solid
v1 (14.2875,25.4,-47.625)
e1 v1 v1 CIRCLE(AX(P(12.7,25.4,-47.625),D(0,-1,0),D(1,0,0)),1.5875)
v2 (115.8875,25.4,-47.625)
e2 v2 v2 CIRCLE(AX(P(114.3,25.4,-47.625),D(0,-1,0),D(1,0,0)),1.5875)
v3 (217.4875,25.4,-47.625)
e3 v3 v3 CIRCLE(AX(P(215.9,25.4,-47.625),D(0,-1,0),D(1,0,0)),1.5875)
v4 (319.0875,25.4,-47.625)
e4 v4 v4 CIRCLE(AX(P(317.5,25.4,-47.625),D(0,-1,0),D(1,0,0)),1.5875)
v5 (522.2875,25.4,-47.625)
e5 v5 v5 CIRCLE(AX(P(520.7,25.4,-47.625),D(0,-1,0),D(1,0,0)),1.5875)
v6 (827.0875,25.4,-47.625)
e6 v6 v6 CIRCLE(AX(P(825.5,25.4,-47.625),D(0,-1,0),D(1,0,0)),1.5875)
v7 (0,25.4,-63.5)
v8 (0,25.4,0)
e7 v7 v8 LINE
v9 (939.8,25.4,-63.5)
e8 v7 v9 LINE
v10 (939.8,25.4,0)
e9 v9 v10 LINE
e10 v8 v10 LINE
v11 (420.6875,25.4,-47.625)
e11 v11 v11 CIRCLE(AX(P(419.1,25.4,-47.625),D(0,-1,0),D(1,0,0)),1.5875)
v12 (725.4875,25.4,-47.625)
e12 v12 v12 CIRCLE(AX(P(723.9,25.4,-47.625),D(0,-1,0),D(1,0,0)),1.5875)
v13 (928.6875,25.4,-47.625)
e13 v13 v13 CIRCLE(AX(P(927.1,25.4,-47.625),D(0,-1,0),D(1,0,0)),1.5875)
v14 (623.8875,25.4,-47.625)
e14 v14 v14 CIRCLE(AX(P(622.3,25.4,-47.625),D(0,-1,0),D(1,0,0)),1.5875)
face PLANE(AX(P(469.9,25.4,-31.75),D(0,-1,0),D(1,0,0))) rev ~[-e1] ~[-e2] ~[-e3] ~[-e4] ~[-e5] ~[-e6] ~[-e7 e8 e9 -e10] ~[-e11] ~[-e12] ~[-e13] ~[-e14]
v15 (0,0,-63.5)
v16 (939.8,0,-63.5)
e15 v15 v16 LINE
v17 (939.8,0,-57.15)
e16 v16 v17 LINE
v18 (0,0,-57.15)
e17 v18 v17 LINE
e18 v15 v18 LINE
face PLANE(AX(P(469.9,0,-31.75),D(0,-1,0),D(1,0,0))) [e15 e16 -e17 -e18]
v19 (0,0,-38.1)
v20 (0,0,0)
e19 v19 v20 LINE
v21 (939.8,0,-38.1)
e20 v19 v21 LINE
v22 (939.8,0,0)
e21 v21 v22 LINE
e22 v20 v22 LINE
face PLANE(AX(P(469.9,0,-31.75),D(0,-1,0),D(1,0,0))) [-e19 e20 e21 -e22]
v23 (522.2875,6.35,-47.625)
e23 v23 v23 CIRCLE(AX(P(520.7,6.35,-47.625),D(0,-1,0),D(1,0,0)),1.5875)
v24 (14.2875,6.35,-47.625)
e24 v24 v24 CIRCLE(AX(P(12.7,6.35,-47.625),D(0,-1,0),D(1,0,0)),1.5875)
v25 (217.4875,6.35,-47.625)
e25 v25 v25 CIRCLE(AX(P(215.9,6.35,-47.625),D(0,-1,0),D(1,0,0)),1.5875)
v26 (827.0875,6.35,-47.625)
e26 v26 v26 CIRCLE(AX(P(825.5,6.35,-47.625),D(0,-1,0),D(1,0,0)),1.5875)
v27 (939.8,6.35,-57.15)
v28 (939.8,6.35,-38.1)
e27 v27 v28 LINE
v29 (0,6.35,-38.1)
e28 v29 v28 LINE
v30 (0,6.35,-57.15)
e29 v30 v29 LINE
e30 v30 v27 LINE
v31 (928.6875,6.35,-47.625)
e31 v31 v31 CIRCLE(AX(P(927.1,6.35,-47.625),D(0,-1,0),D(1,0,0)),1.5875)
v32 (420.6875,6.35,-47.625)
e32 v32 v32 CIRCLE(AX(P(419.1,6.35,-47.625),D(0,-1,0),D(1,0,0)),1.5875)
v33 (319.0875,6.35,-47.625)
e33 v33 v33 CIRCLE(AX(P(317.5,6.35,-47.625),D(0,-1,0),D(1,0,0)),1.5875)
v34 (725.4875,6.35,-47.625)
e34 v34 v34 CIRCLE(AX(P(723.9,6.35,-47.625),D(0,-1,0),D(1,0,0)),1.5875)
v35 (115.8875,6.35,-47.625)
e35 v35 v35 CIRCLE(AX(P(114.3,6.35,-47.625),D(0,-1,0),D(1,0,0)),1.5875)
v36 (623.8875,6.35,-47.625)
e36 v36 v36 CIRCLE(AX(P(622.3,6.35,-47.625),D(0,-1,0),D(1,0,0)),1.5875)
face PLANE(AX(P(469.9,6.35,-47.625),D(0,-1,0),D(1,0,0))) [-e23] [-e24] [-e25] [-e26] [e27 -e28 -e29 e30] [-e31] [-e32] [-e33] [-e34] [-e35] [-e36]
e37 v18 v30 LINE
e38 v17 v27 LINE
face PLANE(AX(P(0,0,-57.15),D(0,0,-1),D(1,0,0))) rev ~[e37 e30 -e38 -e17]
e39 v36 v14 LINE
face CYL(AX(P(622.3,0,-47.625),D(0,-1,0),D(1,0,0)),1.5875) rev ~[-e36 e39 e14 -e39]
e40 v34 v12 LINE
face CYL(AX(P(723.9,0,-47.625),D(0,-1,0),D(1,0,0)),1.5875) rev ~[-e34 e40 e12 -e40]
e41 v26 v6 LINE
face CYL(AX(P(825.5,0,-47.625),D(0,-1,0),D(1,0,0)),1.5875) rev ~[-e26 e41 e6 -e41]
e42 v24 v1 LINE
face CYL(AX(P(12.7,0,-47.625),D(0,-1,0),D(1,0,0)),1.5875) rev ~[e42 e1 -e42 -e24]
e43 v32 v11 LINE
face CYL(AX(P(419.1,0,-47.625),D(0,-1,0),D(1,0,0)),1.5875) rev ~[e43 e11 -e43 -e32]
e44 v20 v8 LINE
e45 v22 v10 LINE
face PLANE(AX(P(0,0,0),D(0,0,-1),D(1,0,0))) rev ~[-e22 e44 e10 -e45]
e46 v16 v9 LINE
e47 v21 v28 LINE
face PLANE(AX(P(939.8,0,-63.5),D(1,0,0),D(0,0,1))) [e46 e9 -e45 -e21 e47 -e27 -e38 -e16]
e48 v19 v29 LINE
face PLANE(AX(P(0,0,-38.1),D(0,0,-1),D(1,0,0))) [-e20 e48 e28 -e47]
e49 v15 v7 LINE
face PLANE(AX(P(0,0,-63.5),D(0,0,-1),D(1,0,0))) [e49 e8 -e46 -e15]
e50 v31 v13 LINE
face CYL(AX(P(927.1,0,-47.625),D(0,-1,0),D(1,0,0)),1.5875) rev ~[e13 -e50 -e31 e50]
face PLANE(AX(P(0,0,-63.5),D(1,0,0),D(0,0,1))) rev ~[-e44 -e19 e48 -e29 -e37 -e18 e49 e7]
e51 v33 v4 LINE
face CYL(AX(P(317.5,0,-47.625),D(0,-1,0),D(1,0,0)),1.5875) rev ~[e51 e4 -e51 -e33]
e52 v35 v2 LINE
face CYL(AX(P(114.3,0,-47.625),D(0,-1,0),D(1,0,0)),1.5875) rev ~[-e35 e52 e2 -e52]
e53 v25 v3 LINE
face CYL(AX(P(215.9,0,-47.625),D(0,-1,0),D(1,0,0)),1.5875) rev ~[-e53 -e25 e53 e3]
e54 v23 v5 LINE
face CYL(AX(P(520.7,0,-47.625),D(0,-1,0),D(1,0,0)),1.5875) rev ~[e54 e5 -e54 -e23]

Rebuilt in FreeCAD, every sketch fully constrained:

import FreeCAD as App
import Part
import Sketcher

V = App.Vector
Q = App.Units.Quantity


def add_polygon(sketch, points):
    """Adds a closed chain of lines whose ends are joined by coincident constraints."""
    first, n = sketch.GeometryCount, len(points)
    for a, b in zip(points, points[1:] + points[:1]):
        sketch.addGeometry(Part.LineSegment(App.Vector(*a, 0), App.Vector(*b, 0)), False)
    for i in range(n):
        sketch.addConstraint(Sketcher.Constraint("Coincident", first + i, 2, first + (i + 1) % n, 1))

doc = App.newDocument("Part")
body = doc.addObject("PartDesign::Body", "Body")

# Sketch on XZ plane
sketch1 = body.newObject("Sketcher::SketchObject", "Sketch")
sketch1.AttachmentSupport = (doc.getObject("XZ_Plane"), [""])
sketch1.MapMode = "FlatFace"
add_polygon(sketch1, [(0, 0), (0, -64), (940, -64), (940, 0)])  # lines 0-3
sketch1.addConstraint([
    Sketcher.Constraint("Vertical", 0),
    Sketcher.Constraint("Horizontal", 1),
    Sketcher.Constraint("Vertical", 2),
    Sketcher.Constraint("Horizontal", 3),
    Sketcher.Constraint("Coincident", 3, 2, -1, 1),
    Sketcher.Constraint("DistanceX", 1, 1, 1, 2, Q("37 in")),
    Sketcher.Constraint("DistanceY", 0, 2, 0, 1, Q("2.5 in")),
])
pad1 = body.newObject("PartDesign::Pad", "Pad")
pad1.Profile = sketch1
pad1.Length = Q("1 in")
pad1.Reversed = True

# Sketch on XZ plane
sketch2 = body.newObject("Sketcher::SketchObject", "Sketch001")
sketch2.AttachmentSupport = (doc.getObject("XZ_Plane"), [""])
sketch2.MapMode = "FlatFace"
add_polygon(sketch2, [(0, -38), (0, -57), (940, -57), (940, -38)])  # lines 0-3
sketch2.addConstraint([
    Sketcher.Constraint("Vertical", 0),
    Sketcher.Constraint("Horizontal", 1),
    Sketcher.Constraint("Vertical", 2),
    Sketcher.Constraint("Horizontal", 3),
    Sketcher.Constraint("PointOnObject", 0, 2, -2),
    Sketcher.Constraint("DistanceX", 1, 1, 1, 2, Q("37 in")),
    Sketcher.Constraint("DistanceY", 0, 2, 0, 1, Q("0.75 in")),
    Sketcher.Constraint("DistanceY", 2, 2, -1, 1, Q("1.5 in")),
])
pocket1 = body.newObject("PartDesign::Pocket", "Pocket")
pocket1.Profile = sketch2
pocket1.Length = Q("0.25 in")

# Sketch on XZ plane
sketch3 = body.newObject("Sketcher::SketchObject", "Sketch002")
sketch3.AttachmentSupport = (doc.getObject("XZ_Plane"), [""])
sketch3.MapMode = "FlatFace"
sketch3.addGeometry([
    Part.Circle(V(12.7, -47.6, 0), V(0, 0, 1), 1.6),  # 0
    Part.Circle(V(114.3, -47.6, 0), V(0, 0, 1), 1.6),  # 1
    Part.Circle(V(215.9, -47.6, 0), V(0, 0, 1), 1.6),  # 2
    Part.Circle(V(317.5, -47.6, 0), V(0, 0, 1), 1.6),  # 3
    Part.Circle(V(419.1, -47.6, 0), V(0, 0, 1), 1.6),  # 4
    Part.Circle(V(520.7, -47.6, 0), V(0, 0, 1), 1.6),  # 5
    Part.Circle(V(622.3, -47.6, 0), V(0, 0, 1), 1.6),  # 6
    Part.Circle(V(723.9, -47.6, 0), V(0, 0, 1), 1.6),  # 7
    Part.Circle(V(825.5, -47.6, 0), V(0, 0, 1), 1.6),  # 8
    Part.Circle(V(927.1, -47.6, 0), V(0, 0, 1), 1.6),  # 9
], False)
sketch3.addConstraint([
    Sketcher.Constraint("Equal", 0, 1),
    Sketcher.Constraint("Equal", 1, 2),
    Sketcher.Constraint("Equal", 2, 3),
    Sketcher.Constraint("Equal", 3, 4),
    Sketcher.Constraint("Equal", 4, 5),
    Sketcher.Constraint("Equal", 5, 6),
    Sketcher.Constraint("Equal", 6, 7),
    Sketcher.Constraint("Equal", 7, 8),
    Sketcher.Constraint("Equal", 8, 9),
    Sketcher.Constraint("Horizontal", 0, 3, 1, 3),
    Sketcher.Constraint("Horizontal", 1, 3, 2, 3),
    Sketcher.Constraint("Horizontal", 2, 3, 3, 3),
    Sketcher.Constraint("Horizontal", 3, 3, 4, 3),
    Sketcher.Constraint("Horizontal", 4, 3, 5, 3),
    Sketcher.Constraint("Horizontal", 5, 3, 6, 3),
    Sketcher.Constraint("Horizontal", 6, 3, 7, 3),
    Sketcher.Constraint("Horizontal", 7, 3, 8, 3),
    Sketcher.Constraint("Horizontal", 8, 3, 9, 3),
    Sketcher.Constraint("Diameter", 0, Q("0.125 in")),
    Sketcher.Constraint("DistanceX", 0, 3, 1, 3, Q("4 in")),
    Sketcher.Constraint("DistanceX", 1, 3, 2, 3, Q("4 in")),
    Sketcher.Constraint("DistanceX", 2, 3, 3, 3, Q("4 in")),
    Sketcher.Constraint("DistanceX", 3, 3, 4, 3, Q("4 in")),
    Sketcher.Constraint("DistanceX", 4, 3, 5, 3, Q("4 in")),
    Sketcher.Constraint("DistanceX", 5, 3, 6, 3, Q("4 in")),
    Sketcher.Constraint("DistanceX", 6, 3, 7, 3, Q("4 in")),
    Sketcher.Constraint("DistanceX", 7, 3, 8, 3, Q("4 in")),
    Sketcher.Constraint("DistanceX", 8, 3, 9, 3, Q("4 in")),
    Sketcher.Constraint("DistanceX", -1, 1, 0, 3, Q("0.5 in")),
    Sketcher.Constraint("DistanceY", 0, 3, -1, 1, Q("1.875 in")),
])
pocket2 = body.newObject("PartDesign::Pocket", "Pocket001")
pocket2.Profile = sketch3
pocket2.Type = "ThroughAll"

doc.recompute()
